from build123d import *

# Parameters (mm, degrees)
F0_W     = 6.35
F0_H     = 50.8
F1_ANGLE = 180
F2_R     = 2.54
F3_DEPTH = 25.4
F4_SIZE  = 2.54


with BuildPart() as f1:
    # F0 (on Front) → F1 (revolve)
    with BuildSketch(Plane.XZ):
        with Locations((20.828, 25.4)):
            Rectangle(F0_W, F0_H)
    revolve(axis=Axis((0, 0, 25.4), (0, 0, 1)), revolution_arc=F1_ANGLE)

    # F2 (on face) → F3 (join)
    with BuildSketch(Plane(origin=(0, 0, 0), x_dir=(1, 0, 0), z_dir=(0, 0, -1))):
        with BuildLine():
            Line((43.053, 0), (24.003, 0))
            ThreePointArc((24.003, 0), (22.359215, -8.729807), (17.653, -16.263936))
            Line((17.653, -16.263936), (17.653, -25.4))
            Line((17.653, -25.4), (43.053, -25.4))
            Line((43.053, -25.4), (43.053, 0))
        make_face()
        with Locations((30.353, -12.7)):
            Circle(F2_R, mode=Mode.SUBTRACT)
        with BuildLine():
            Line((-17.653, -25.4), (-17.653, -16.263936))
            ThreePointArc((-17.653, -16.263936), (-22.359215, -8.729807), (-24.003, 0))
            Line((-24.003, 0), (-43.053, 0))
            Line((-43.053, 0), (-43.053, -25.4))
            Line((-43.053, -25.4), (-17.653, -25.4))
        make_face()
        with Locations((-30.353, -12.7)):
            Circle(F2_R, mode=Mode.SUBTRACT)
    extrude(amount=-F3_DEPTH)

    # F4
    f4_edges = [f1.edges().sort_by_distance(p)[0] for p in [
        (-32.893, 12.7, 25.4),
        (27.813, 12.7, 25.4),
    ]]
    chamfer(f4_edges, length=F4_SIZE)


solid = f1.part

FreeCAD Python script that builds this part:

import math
import FreeCAD as App
import Part
import Sketcher
Q = App.Units.Quantity


def edges_at(feature, points):
    """Names of the edges that pass closest to the given points."""
    edges = feature.Shape.Edges
    near = lambda p: min(range(len(edges)), key=lambda i: edges[i].distToShape(Part.Vertex(*p))[0])
    return sorted({f"Edge{near(p) + 1}" for p in points})

doc = App.newDocument("Part")
body = doc.addObject("PartDesign::Body", "Body")

sketch1 = doc.addObject("Sketcher::SketchObject", "Sketch")
body.addObject(sketch1)
sketch1.AttachmentSupport = (doc.XZ_Plane, [""])
sketch1.MapMode = "FlatFace"
sketch1.addGeometry([
    Part.LineSegment(App.Vector(18, 51, 0), App.Vector(18, 0, 0)),
    Part.LineSegment(App.Vector(18, 0, 0), App.Vector(24, 0, 0)),
    Part.LineSegment(App.Vector(24, 0, 0), App.Vector(24, 51, 0)),
    Part.LineSegment(App.Vector(24, 51, 0), App.Vector(18, 51, 0)),
], False)
sketch1.addConstraint([
    Sketcher.Constraint("Coincident", 0, 2, 1, 1),
    Sketcher.Constraint("Coincident", 1, 2, 2, 1),
    Sketcher.Constraint("Coincident", 2, 2, 3, 1),
    Sketcher.Constraint("Coincident", 3, 2, 0, 1),
    Sketcher.Constraint("Vertical", 0),
    Sketcher.Constraint("Horizontal", 1),
    Sketcher.Constraint("Vertical", 2),
    Sketcher.Constraint("Horizontal", 3),
    Sketcher.Constraint("PointOnObject", 0, 2, -1),
    Sketcher.Constraint("DistanceY", 0, 2, 0, 1, Q("2 in")),
    Sketcher.Constraint("DistanceX", 1, 1, 1, 2, Q("0.25 in")),
    Sketcher.Constraint("DistanceX", -1, 1, 0, 2, Q("0.695 in")),
])
revolution = doc.addObject("PartDesign::Revolution", "Revolution")
body.addObject(revolution)
revolution.Profile = sketch1
revolution.ReferenceAxis = (sketch1, ["V_Axis"])
revolution.Angle = 180

sketch2 = doc.addObject("Sketcher::SketchObject", "Sketch001")
body.addObject(sketch2)
sketch2.AttachmentSupport = (doc.XY_Plane, [""])
sketch2.MapMode = "FlatFace"
sketch2.addGeometry([
    Part.LineSegment(App.Vector(43.1, 0, 0), App.Vector(24, 0, 0)),
    Part.ArcOfCircle(Part.Circle(App.Vector(0, 0, 0), App.Vector(0, 0, 1), 24), math.radians(0), math.radians(43)),
    Part.LineSegment(App.Vector(17.7, 16.3, 0), App.Vector(17.7, 25.4, 0)),
    Part.LineSegment(App.Vector(17.7, 25.4, 0), App.Vector(43.1, 25.4, 0)),
    Part.LineSegment(App.Vector(43.1, 25.4, 0), App.Vector(43.1, 0, 0)),
    Part.Circle(App.Vector(30.4, 12.7, 0), App.Vector(0, 0, 1), 2.5),
    Part.LineSegment(App.Vector(-17.7, 25.4, 0), App.Vector(-17.7, 16.3, 0)),
    Part.ArcOfCircle(Part.Circle(App.Vector(0, 0, 0), App.Vector(0, 0, 1), 24), math.radians(137), math.radians(180)),
    Part.LineSegment(App.Vector(-24, 0, 0), App.Vector(-43.1, 0, 0)),
    Part.LineSegment(App.Vector(-43.1, 0, 0), App.Vector(-43.1, 25.4, 0)),
    Part.LineSegment(App.Vector(-43.1, 25.4, 0), App.Vector(-17.7, 25.4, 0)),
    Part.Circle(App.Vector(-30.4, 12.7, 0), App.Vector(0, 0, 1), 2.5),
], False)
sketch2.addConstraint([
    Sketcher.Constraint("Coincident", 0, 2, 1, 1),
    Sketcher.Constraint("Coincident", 1, 2, 2, 1),
    Sketcher.Constraint("Coincident", 2, 2, 3, 1),
    Sketcher.Constraint("Coincident", 3, 2, 4, 1),
    Sketcher.Constraint("Coincident", 4, 2, 0, 1),
    Sketcher.Constraint("Coincident", 6, 2, 7, 1),
    Sketcher.Constraint("Coincident", 7, 2, 8, 1),
    Sketcher.Constraint("Coincident", 8, 2, 9, 1),
    Sketcher.Constraint("Coincident", 9, 2, 10, 1),
    Sketcher.Constraint("Coincident", 10, 2, 6, 1),
    Sketcher.Constraint("Horizontal", 0),
    Sketcher.Constraint("Vertical", 2),
    Sketcher.Constraint("Horizontal", 3),
    Sketcher.Constraint("Vertical", 4),
    Sketcher.Constraint("Vertical", 6),
    Sketcher.Constraint("Horizontal", 8),
    Sketcher.Constraint("Vertical", 9),
    Sketcher.Constraint("Horizontal", 10),
    Sketcher.Constraint("Coincident", 1, 3, -1, 1),
    Sketcher.Constraint("Coincident", 7, 3, -1, 1),
    Sketcher.Constraint("Equal", 1, 7),
    Sketcher.Constraint("Equal", 5, 11),
    Sketcher.Constraint("Symmetric", 4, 2, 8, 2, -1, 1),
    Sketcher.Constraint("Symmetric", 5, 3, 11, 3, -2),
    Sketcher.Constraint("Symmetric", 2, 2, 10, 2, -2),
    Sketcher.Constraint("PointOnObject", 0, 2, -1),
    Sketcher.Constraint("Equal", 10, 4),
    Sketcher.Constraint("Diameter", 5, Q("0.2 in")),
    Sketcher.Constraint("DistanceX", 3, 1, 3, 2, Q("1 in")),
    Sketcher.Constraint("Radius", 1, Q("0.9449999 in")),
    Sketcher.Constraint("DistanceX", 0, 2, 0, 1, Q("0.75 in")),
    Sketcher.Constraint("DistanceY", -1, 1, 5, 3, Q("0.5 in")),
    Sketcher.Constraint("DistanceX", 1, 2, 5, 3, Q("0.5 in")),
])
pad1 = doc.addObject("PartDesign::Pad", "Pad")
body.addObject(pad1)
pad1.Profile = sketch2
pad1.Length = Q("1 in")
doc.recompute()

chamfer = doc.addObject("PartDesign::Chamfer", "Chamfer")
body.addObject(chamfer)
chamfer.Base = (pad1, edges_at(pad1, [(-32.893, 12.7, 25.4), (27.813, 12.7, 25.4)]))
chamfer.Size = Q("0.1 in")

doc.recompute()
